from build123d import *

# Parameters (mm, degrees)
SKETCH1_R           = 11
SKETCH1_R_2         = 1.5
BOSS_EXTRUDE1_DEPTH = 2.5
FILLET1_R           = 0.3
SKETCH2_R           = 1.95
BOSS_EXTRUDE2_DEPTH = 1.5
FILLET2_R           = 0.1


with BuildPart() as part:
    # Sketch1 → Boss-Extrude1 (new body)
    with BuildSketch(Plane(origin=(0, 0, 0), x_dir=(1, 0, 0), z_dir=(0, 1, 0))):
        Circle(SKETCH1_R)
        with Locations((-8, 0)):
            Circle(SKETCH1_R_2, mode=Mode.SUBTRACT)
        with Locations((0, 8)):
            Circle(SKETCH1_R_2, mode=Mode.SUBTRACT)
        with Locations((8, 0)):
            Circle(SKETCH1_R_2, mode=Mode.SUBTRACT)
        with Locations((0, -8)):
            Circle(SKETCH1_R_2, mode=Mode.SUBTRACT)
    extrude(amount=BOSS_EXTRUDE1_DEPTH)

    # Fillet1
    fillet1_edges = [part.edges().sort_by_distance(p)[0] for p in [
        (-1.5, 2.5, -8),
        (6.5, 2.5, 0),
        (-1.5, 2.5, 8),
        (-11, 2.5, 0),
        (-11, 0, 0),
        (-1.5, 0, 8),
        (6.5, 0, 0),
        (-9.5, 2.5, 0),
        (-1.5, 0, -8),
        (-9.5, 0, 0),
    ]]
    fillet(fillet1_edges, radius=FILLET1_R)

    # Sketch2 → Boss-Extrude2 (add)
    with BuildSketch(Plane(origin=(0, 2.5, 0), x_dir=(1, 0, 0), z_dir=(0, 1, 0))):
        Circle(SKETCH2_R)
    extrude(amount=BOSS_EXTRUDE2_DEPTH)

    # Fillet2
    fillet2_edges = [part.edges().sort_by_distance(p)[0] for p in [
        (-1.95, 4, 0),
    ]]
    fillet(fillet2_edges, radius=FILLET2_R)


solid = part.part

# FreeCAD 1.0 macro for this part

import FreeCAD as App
import Part
import Sketcher

V = App.Vector


def edges_at(feature, points):
    """Names of the edges that pass closest to the given points."""
    edges = feature.Shape.Edges
    near = lambda p: min(range(len(edges)), key=lambda i: edges[i].distToShape(Part.Vertex(*p))[0])
    return sorted({f"Edge{near(p) + 1}" for p in points})

doc = App.newDocument("Part")
body = doc.addObject("PartDesign::Body", "Body")

# Sketch on XZ plane
sketch1 = body.newObject("Sketcher::SketchObject", "Sketch")
sketch1.AttachmentSupport = (doc.getObject("XZ_Plane"), [""])
sketch1.MapMode = "FlatFace"
sketch1.addGeometry([
    Part.Circle(V(0, 0, 0), V(0, 0, 1), 11),  # 0
    Part.Circle(V(0, 8, 0), V(0, 0, 1), 1.5),  # 1
    Part.Circle(V(-8, 0, 0), V(0, 0, 1), 1.5),  # 2
    Part.Circle(V(8, 0, 0), V(0, 0, 1), 1.5),  # 3
    Part.Circle(V(0, -8, 0), V(0, 0, 1), 1.5),  # 4
], False)
sketch1.addConstraint([
    Sketcher.Constraint("Coincident", 0, 3, -1, 1),
    Sketcher.Constraint("Equal", 1, 2),
    Sketcher.Constraint("Equal", 2, 3),
    Sketcher.Constraint("Equal", 3, 4),
    Sketcher.Constraint("Symmetric", 2, 3, 3, 3, -1, 1),
    Sketcher.Constraint("Symmetric", 1, 3, 4, 3, -1, 1),
    Sketcher.Constraint("PointOnObject", 1, 3, -2),
    Sketcher.Constraint("PointOnObject", 2, 3, -1),
    Sketcher.Constraint("Diameter", 0, 22.0),
    Sketcher.Constraint("Diameter", 1, 3.0),
    Sketcher.Constraint("DistanceY", -1, 1, 1, 3, 8.0),
    Sketcher.Constraint("DistanceX", 2, 3, -1, 1, 8.0),
])
pad1 = body.newObject("PartDesign::Pad", "Pad")
pad1.Profile = sketch1
pad1.Length = 2.5
pad1.Reversed = True
doc.recompute()

fillet = body.newObject("PartDesign::Fillet", "Fillet")
fillet.Base = (pad1, edges_at(pad1, [
    (-1.5, 2.5, -8),
    (6.5, 2.5, 0),
    (-1.5, 2.5, 8),
    (-11, 2.5, 0),
    (-11, 0, 0),
    (-1.5, 0, 8),
    (6.5, 0, 0),
    (-9.5, 2.5, 0),
    (-1.5, 0, -8),
    (-9.5, 0, 0),
]))
fillet.Radius = 0.3

# Sketch on XZ plane
sketch2 = body.newObject("Sketcher::SketchObject", "Sketch001")
sketch2.AttachmentSupport = (doc.getObject("XZ_Plane"), [""])
sketch2.MapMode = "FlatFace"
sketch2.AttachmentOffset = App.Placement(V(0, 0, -2.5), App.Rotation())
sketch2.addGeometry(Part.Circle(V(0, 0, 0), V(0, 0, 1), 1.9), False)
sketch2.addConstraint([
    Sketcher.Constraint("Coincident", 0, 3, -1, 1),
    Sketcher.Constraint("Diameter", 0, 3.9),
])
pad2 = body.newObject("PartDesign::Pad", "Pad001")
pad2.Profile = sketch2
pad2.Length = 1.5
pad2.Reversed = True
doc.recompute()

fillet2 = body.newObject("PartDesign::Fillet", "Fillet001")
fillet2.Base = (pad2, edges_at(pad2, [(-1.95, 4, 0)]))
fillet2.Radius = 0.1

doc.recompute()
